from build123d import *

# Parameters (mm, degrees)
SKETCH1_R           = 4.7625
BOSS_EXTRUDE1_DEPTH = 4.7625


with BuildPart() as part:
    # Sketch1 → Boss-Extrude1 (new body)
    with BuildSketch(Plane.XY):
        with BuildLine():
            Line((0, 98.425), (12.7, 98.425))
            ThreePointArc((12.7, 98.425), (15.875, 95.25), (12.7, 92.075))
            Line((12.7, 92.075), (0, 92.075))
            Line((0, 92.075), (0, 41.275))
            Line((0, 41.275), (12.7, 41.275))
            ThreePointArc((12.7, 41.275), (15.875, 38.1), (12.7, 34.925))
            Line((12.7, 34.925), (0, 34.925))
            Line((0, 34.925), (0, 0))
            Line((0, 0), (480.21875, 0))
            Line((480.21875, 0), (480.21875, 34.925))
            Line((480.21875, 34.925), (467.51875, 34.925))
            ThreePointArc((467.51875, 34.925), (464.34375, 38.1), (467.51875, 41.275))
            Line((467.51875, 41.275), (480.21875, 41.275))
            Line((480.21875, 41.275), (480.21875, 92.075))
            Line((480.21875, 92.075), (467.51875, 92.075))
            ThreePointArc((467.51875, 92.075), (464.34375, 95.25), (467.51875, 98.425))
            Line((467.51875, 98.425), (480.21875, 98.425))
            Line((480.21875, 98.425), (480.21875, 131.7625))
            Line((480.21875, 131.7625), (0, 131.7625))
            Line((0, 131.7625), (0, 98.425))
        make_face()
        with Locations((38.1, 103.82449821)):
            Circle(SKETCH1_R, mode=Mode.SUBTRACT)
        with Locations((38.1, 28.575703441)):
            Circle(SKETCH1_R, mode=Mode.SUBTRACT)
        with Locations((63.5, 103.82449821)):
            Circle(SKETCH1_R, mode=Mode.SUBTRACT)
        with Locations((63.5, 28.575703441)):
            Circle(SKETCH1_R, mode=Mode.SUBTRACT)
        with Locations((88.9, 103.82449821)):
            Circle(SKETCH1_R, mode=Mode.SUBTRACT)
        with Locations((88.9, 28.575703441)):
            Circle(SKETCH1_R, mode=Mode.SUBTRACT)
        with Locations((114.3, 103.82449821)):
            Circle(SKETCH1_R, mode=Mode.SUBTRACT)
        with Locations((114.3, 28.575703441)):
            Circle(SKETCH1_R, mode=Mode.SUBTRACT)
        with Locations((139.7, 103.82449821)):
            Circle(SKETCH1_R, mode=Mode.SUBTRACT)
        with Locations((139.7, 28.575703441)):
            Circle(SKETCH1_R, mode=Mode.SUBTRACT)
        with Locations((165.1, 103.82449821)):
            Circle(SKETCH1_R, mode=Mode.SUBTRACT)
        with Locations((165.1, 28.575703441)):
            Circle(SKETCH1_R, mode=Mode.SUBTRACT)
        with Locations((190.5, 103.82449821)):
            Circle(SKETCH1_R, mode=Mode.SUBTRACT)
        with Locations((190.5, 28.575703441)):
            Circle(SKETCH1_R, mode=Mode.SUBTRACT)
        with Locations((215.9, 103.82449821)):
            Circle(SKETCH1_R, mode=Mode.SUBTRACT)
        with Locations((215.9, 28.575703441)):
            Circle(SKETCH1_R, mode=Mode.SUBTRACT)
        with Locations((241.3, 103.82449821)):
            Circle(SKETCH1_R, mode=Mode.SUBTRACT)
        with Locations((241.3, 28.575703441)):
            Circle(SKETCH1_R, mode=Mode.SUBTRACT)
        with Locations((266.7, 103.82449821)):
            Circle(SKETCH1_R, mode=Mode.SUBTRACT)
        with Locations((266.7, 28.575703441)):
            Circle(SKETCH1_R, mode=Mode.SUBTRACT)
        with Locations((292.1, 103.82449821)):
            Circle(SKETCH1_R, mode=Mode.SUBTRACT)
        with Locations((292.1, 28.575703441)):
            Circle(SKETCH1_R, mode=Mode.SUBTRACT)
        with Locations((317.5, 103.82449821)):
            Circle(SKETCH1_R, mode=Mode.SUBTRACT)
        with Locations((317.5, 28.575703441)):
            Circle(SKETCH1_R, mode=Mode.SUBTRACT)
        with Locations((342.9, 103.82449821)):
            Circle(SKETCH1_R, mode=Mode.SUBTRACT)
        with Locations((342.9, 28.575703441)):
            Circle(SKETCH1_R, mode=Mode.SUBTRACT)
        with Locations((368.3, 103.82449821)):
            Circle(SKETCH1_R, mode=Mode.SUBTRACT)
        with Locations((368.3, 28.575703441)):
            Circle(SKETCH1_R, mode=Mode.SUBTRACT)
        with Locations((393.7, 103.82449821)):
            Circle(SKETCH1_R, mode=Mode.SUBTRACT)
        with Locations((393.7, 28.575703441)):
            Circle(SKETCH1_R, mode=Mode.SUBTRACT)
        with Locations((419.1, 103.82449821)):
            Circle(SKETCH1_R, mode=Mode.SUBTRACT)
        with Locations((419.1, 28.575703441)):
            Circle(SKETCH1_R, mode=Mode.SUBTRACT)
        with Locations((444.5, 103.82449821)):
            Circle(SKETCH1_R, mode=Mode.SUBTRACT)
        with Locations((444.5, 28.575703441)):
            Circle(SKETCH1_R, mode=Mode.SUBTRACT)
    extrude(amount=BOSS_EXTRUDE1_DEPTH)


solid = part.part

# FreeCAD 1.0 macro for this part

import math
import FreeCAD as App
import Part
import Sketcher
Q = App.Units.Quantity

doc = App.newDocument("Part")
body = doc.addObject("PartDesign::Body", "Body")

sketch1 = body.newObject("Sketcher::SketchObject", "Sketch")
sketch1.AttachmentSupport = (doc.getObject("XY_Plane"), [""])
sketch1.MapMode = "FlatFace"
sketch1.addGeometry(Part.LineSegment(App.Vector(0, 98.4, 0), App.Vector(12.7, 98.4, 0)), False)
sketch1.addGeometry(Part.ArcOfCircle(Part.Circle(App.Vector(12.7, 95.2, 0), App.Vector(0, 0, 1), 3.2), math.radians(-90), math.radians(90)), False)
sketch1.addGeometry(Part.LineSegment(App.Vector(12.7, 92.1, 0), App.Vector(0, 92.1, 0)), False)
sketch1.addGeometry(Part.LineSegment(App.Vector(0, 92.1, 0), App.Vector(0, 41.3, 0)), False)
sketch1.addGeometry(Part.LineSegment(App.Vector(0, 41.3, 0), App.Vector(12.7, 41.3, 0)), False)
sketch1.addGeometry(Part.ArcOfCircle(Part.Circle(App.Vector(12.7, 38.1, 0), App.Vector(0, 0, 1), 3.2), math.radians(-90), math.radians(90)), False)
sketch1.addGeometry(Part.LineSegment(App.Vector(12.7, 34.9, 0), App.Vector(0, 34.9, 0)), False)
sketch1.addGeometry(Part.LineSegment(App.Vector(0, 34.9, 0), App.Vector(0, 0, 0)), False)
sketch1.addGeometry(Part.LineSegment(App.Vector(0, 0, 0), App.Vector(480.2, 0, 0)), False)
sketch1.addGeometry(Part.LineSegment(App.Vector(480.2, 0, 0), App.Vector(480.2, 34.9, 0)), False)
sketch1.addGeometry(Part.LineSegment(App.Vector(480.2, 34.9, 0), App.Vector(467.5, 34.9, 0)), False)
sketch1.addGeometry(Part.ArcOfCircle(Part.Circle(App.Vector(467.5, 38.1, 0), App.Vector(0, 0, 1), 3.2), math.radians(90), math.radians(270)), False)
sketch1.addGeometry(Part.LineSegment(App.Vector(467.5, 41.3, 0), App.Vector(480.2, 41.3, 0)), False)
sketch1.addGeometry(Part.LineSegment(App.Vector(480.2, 41.3, 0), App.Vector(480.2, 92.1, 0)), False)
sketch1.addGeometry(Part.LineSegment(App.Vector(480.2, 92.1, 0), App.Vector(467.5, 92.1, 0)), False)
sketch1.addGeometry(Part.ArcOfCircle(Part.Circle(App.Vector(467.5, 95.2, 0), App.Vector(0, 0, 1), 3.2), math.radians(90), math.radians(270)), False)
sketch1.addGeometry(Part.LineSegment(App.Vector(467.5, 98.4, 0), App.Vector(480.2, 98.4, 0)), False)
sketch1.addGeometry(Part.LineSegment(App.Vector(480.2, 98.4, 0), App.Vector(480.2, 131.8, 0)), False)
sketch1.addGeometry(Part.LineSegment(App.Vector(480.2, 131.8, 0), App.Vector(0, 131.8, 0)), False)
sketch1.addGeometry(Part.LineSegment(App.Vector(0, 131.8, 0), App.Vector(0, 98.4, 0)), False)
sketch1.addGeometry(Part.Circle(App.Vector(38.1, 28.6, 0), App.Vector(0, 0, 1), 4.8), False)
sketch1.addGeometry(Part.Circle(App.Vector(63.5, 28.6, 0), App.Vector(0, 0, 1), 4.8), False)
sketch1.addGeometry(Part.Circle(App.Vector(88.9, 28.6, 0), App.Vector(0, 0, 1), 4.8), False)
sketch1.addGeometry(Part.Circle(App.Vector(114.3, 28.6, 0), App.Vector(0, 0, 1), 4.8), False)
sketch1.addGeometry(Part.Circle(App.Vector(139.7, 28.6, 0), App.Vector(0, 0, 1), 4.8), False)
sketch1.addGeometry(Part.Circle(App.Vector(165.1, 28.6, 0), App.Vector(0, 0, 1), 4.8), False)
sketch1.addGeometry(Part.Circle(App.Vector(190.5, 28.6, 0), App.Vector(0, 0, 1), 4.8), False)
sketch1.addGeometry(Part.Circle(App.Vector(215.9, 28.6, 0), App.Vector(0, 0, 1), 4.8), False)
sketch1.addGeometry(Part.Circle(App.Vector(241.3, 28.6, 0), App.Vector(0, 0, 1), 4.8), False)
sketch1.addGeometry(Part.Circle(App.Vector(266.7, 28.6, 0), App.Vector(0, 0, 1), 4.8), False)
sketch1.addGeometry(Part.Circle(App.Vector(292.1, 28.6, 0), App.Vector(0, 0, 1), 4.8), False)
sketch1.addGeometry(Part.Circle(App.Vector(317.5, 28.6, 0), App.Vector(0, 0, 1), 4.8), False)
sketch1.addGeometry(Part.Circle(App.Vector(342.9, 28.6, 0), App.Vector(0, 0, 1), 4.8), False)
sketch1.addGeometry(Part.Circle(App.Vector(368.3, 28.6, 0), App.Vector(0, 0, 1), 4.8), False)
sketch1.addGeometry(Part.Circle(App.Vector(393.7, 28.6, 0), App.Vector(0, 0, 1), 4.8), False)
sketch1.addGeometry(Part.Circle(App.Vector(419.1, 28.6, 0), App.Vector(0, 0, 1), 4.8), False)
sketch1.addGeometry(Part.Circle(App.Vector(444.5, 28.6, 0), App.Vector(0, 0, 1), 4.8), False)
sketch1.addGeometry(Part.Circle(App.Vector(38.1, 103.8, 0), App.Vector(0, 0, 1), 4.8), False)
sketch1.addGeometry(Part.Circle(App.Vector(63.5, 103.8, 0), App.Vector(0, 0, 1), 4.8), False)
sketch1.addGeometry(Part.Circle(App.Vector(88.9, 103.8, 0), App.Vector(0, 0, 1), 4.8), False)
sketch1.addGeometry(Part.Circle(App.Vector(114.3, 103.8, 0), App.Vector(0, 0, 1), 4.8), False)
sketch1.addGeometry(Part.Circle(App.Vector(139.7, 103.8, 0), App.Vector(0, 0, 1), 4.8), False)
sketch1.addGeometry(Part.Circle(App.Vector(165.1, 103.8, 0), App.Vector(0, 0, 1), 4.8), False)
sketch1.addGeometry(Part.Circle(App.Vector(190.5, 103.8, 0), App.Vector(0, 0, 1), 4.8), False)
sketch1.addGeometry(Part.Circle(App.Vector(215.9, 103.8, 0), App.Vector(0, 0, 1), 4.8), False)
sketch1.addGeometry(Part.Circle(App.Vector(241.3, 103.8, 0), App.Vector(0, 0, 1), 4.8), False)
sketch1.addGeometry(Part.Circle(App.Vector(266.7, 103.8, 0), App.Vector(0, 0, 1), 4.8), False)
sketch1.addGeometry(Part.Circle(App.Vector(292.1, 103.8, 0), App.Vector(0, 0, 1), 4.8), False)
sketch1.addGeometry(Part.Circle(App.Vector(317.5, 103.8, 0), App.Vector(0, 0, 1), 4.8), False)
sketch1.addGeometry(Part.Circle(App.Vector(342.9, 103.8, 0), App.Vector(0, 0, 1), 4.8), False)
sketch1.addGeometry(Part.Circle(App.Vector(368.3, 103.8, 0), App.Vector(0, 0, 1), 4.8), False)
sketch1.addGeometry(Part.Circle(App.Vector(393.7, 103.8, 0), App.Vector(0, 0, 1), 4.8), False)
sketch1.addGeometry(Part.Circle(App.Vector(419.1, 103.8, 0), App.Vector(0, 0, 1), 4.8), False)
sketch1.addGeometry(Part.Circle(App.Vector(444.5, 103.8, 0), App.Vector(0, 0, 1), 4.8), False)
sketch1.addConstraint(Sketcher.Constraint("Tangent", 0, 2, 1, 2))
sketch1.addConstraint(Sketcher.Constraint("Tangent", 1, 1, 2, 1))
sketch1.addConstraint(Sketcher.Constraint("Coincident", 2, 2, 3, 1))
sketch1.addConstraint(Sketcher.Constraint("Coincident", 3, 2, 4, 1))
sketch1.addConstraint(Sketcher.Constraint("Tangent", 4, 2, 5, 2))
sketch1.addConstraint(Sketcher.Constraint("Tangent", 5, 1, 6, 1))
sketch1.addConstraint(Sketcher.Constraint("Coincident", 6, 2, 7, 1))
sketch1.addConstraint(Sketcher.Constraint("Coincident", 7, 2, 8, 1))
sketch1.addConstraint(Sketcher.Constraint("Coincident", 8, 2, 9, 1))
sketch1.addConstraint(Sketcher.Constraint("Coincident", 9, 2, 10, 1))
sketch1.addConstraint(Sketcher.Constraint("Tangent", 10, 2, 11, 2))
sketch1.addConstraint(Sketcher.Constraint("Tangent", 11, 1, 12, 1))
sketch1.addConstraint(Sketcher.Constraint("Coincident", 12, 2, 13, 1))
sketch1.addConstraint(Sketcher.Constraint("Coincident", 13, 2, 14, 1))
sketch1.addConstraint(Sketcher.Constraint("Tangent", 14, 2, 15, 2))
sketch1.addConstraint(Sketcher.Constraint("Tangent", 15, 1, 16, 1))
sketch1.addConstraint(Sketcher.Constraint("Coincident", 16, 2, 17, 1))
sketch1.addConstraint(Sketcher.Constraint("Coincident", 17, 2, 18, 1))
sketch1.addConstraint(Sketcher.Constraint("Coincident", 18, 2, 19, 1))
sketch1.addConstraint(Sketcher.Constraint("Coincident", 19, 2, 0, 1))
sketch1.addConstraint(Sketcher.Constraint("Horizontal", 0))
sketch1.addConstraint(Sketcher.Constraint("Horizontal", 2))
sketch1.addConstraint(Sketcher.Constraint("Vertical", 3))
sketch1.addConstraint(Sketcher.Constraint("Horizontal", 4))
sketch1.addConstraint(Sketcher.Constraint("Horizontal", 6))
sketch1.addConstraint(Sketcher.Constraint("Vertical", 7))
sketch1.addConstraint(Sketcher.Constraint("Horizontal", 8))
sketch1.addConstraint(Sketcher.Constraint("Vertical", 9))
sketch1.addConstraint(Sketcher.Constraint("Horizontal", 10))
sketch1.addConstraint(Sketcher.Constraint("Horizontal", 12))
sketch1.addConstraint(Sketcher.Constraint("Vertical", 13))
sketch1.addConstraint(Sketcher.Constraint("Horizontal", 14))
sketch1.addConstraint(Sketcher.Constraint("Horizontal", 16))
sketch1.addConstraint(Sketcher.Constraint("Vertical", 17))
sketch1.addConstraint(Sketcher.Constraint("Horizontal", 18))
sketch1.addConstraint(Sketcher.Constraint("Vertical", 19))
sketch1.addConstraint(Sketcher.Constraint("Coincident", 7, 2, -1, 1))
sketch1.addConstraint(Sketcher.Constraint("Equal", 1, 5))
sketch1.addConstraint(Sketcher.Constraint("Equal", 5, 11))
sketch1.addConstraint(Sketcher.Constraint("Equal", 11, 15))
sketch1.addConstraint(Sketcher.Constraint("Equal", 20, 21))
sketch1.addConstraint(Sketcher.Constraint("Equal", 21, 22))
sketch1.addConstraint(Sketcher.Constraint("Equal", 22, 23))
sketch1.addConstraint(Sketcher.Constraint("Equal", 23, 24))
sketch1.addConstraint(Sketcher.Constraint("Equal", 24, 25))
sketch1.addConstraint(Sketcher.Constraint("Equal", 25, 26))
sketch1.addConstraint(Sketcher.Constraint("Equal", 26, 27))
sketch1.addConstraint(Sketcher.Constraint("Equal", 27, 28))
sketch1.addConstraint(Sketcher.Constraint("Equal", 28, 29))
sketch1.addConstraint(Sketcher.Constraint("Equal", 29, 30))
sketch1.addConstraint(Sketcher.Constraint("Equal", 30, 31))
sketch1.addConstraint(Sketcher.Constraint("Equal", 31, 32))
sketch1.addConstraint(Sketcher.Constraint("Equal", 32, 33))
sketch1.addConstraint(Sketcher.Constraint("Equal", 33, 34))
sketch1.addConstraint(Sketcher.Constraint("Equal", 34, 35))
sketch1.addConstraint(Sketcher.Constraint("Equal", 35, 36))
sketch1.addConstraint(Sketcher.Constraint("Equal", 36, 37))
sketch1.addConstraint(Sketcher.Constraint("Equal", 37, 38))
sketch1.addConstraint(Sketcher.Constraint("Equal", 38, 39))
sketch1.addConstraint(Sketcher.Constraint("Equal", 39, 40))
sketch1.addConstraint(Sketcher.Constraint("Equal", 40, 41))
sketch1.addConstraint(Sketcher.Constraint("Equal", 41, 42))
sketch1.addConstraint(Sketcher.Constraint("Equal", 42, 43))
sketch1.addConstraint(Sketcher.Constraint("Equal", 43, 44))
sketch1.addConstraint(Sketcher.Constraint("Equal", 44, 45))
sketch1.addConstraint(Sketcher.Constraint("Equal", 45, 46))
sketch1.addConstraint(Sketcher.Constraint("Equal", 46, 47))
sketch1.addConstraint(Sketcher.Constraint("Equal", 47, 48))
sketch1.addConstraint(Sketcher.Constraint("Equal", 48, 49))
sketch1.addConstraint(Sketcher.Constraint("Equal", 49, 50))
sketch1.addConstraint(Sketcher.Constraint("Equal", 50, 51))
sketch1.addConstraint(Sketcher.Constraint("Equal", 51, 52))
sketch1.addConstraint(Sketcher.Constraint("Equal", 52, 53))
sketch1.addConstraint(Sketcher.Constraint("PointOnObject", 2, 2, -2))
sketch1.addConstraint(Sketcher.Constraint("PointOnObject", 18, 2, -2))
sketch1.addConstraint(Sketcher.Constraint("Horizontal", 5, 3, 11, 3))
sketch1.addConstraint(Sketcher.Constraint("Horizontal", 1, 3, 15, 3))
sketch1.addConstraint(Sketcher.Constraint("Horizontal", 20, 3, 21, 3))
sketch1.addConstraint(Sketcher.Constraint("Horizontal", 21, 3, 22, 3))
sketch1.addConstraint(Sketcher.Constraint("Horizontal", 22, 3, 23, 3))
sketch1.addConstraint(Sketcher.Constraint("Horizontal", 23, 3, 24, 3))
sketch1.addConstraint(Sketcher.Constraint("Horizontal", 24, 3, 25, 3))
sketch1.addConstraint(Sketcher.Constraint("Horizontal", 25, 3, 26, 3))
sketch1.addConstraint(Sketcher.Constraint("Horizontal", 26, 3, 27, 3))
sketch1.addConstraint(Sketcher.Constraint("Horizontal", 27, 3, 28, 3))
sketch1.addConstraint(Sketcher.Constraint("Horizontal", 28, 3, 29, 3))
sketch1.addConstraint(Sketcher.Constraint("Horizontal", 29, 3, 30, 3))
sketch1.addConstraint(Sketcher.Constraint("Horizontal", 30, 3, 31, 3))
sketch1.addConstraint(Sketcher.Constraint("Horizontal", 31, 3, 32, 3))
sketch1.addConstraint(Sketcher.Constraint("Horizontal", 32, 3, 33, 3))
sketch1.addConstraint(Sketcher.Constraint("Horizontal", 33, 3, 34, 3))
sketch1.addConstraint(Sketcher.Constraint("Horizontal", 34, 3, 35, 3))
sketch1.addConstraint(Sketcher.Constraint("Horizontal", 35, 3, 36, 3))
sketch1.addConstraint(Sketcher.Constraint("Horizontal", 37, 3, 38, 3))
sketch1.addConstraint(Sketcher.Constraint("Horizontal", 38, 3, 39, 3))
sketch1.addConstraint(Sketcher.Constraint("Horizontal", 39, 3, 40, 3))
sketch1.addConstraint(Sketcher.Constraint("Horizontal", 40, 3, 41, 3))
sketch1.addConstraint(Sketcher.Constraint("Horizontal", 41, 3, 42, 3))
sketch1.addConstraint(Sketcher.Constraint("Horizontal", 42, 3, 43, 3))
sketch1.addConstraint(Sketcher.Constraint("Horizontal", 43, 3, 44, 3))
sketch1.addConstraint(Sketcher.Constraint("Horizontal", 44, 3, 45, 3))
sketch1.addConstraint(Sketcher.Constraint("Horizontal", 45, 3, 46, 3))
sketch1.addConstraint(Sketcher.Constraint("Horizontal", 46, 3, 47, 3))
sketch1.addConstraint(Sketcher.Constraint("Horizontal", 47, 3, 48, 3))
sketch1.addConstraint(Sketcher.Constraint("Horizontal", 48, 3, 49, 3))
sketch1.addConstraint(Sketcher.Constraint("Horizontal", 49, 3, 50, 3))
sketch1.addConstraint(Sketcher.Constraint("Horizontal", 50, 3, 51, 3))
sketch1.addConstraint(Sketcher.Constraint("Horizontal", 51, 3, 52, 3))
sketch1.addConstraint(Sketcher.Constraint("Horizontal", 52, 3, 53, 3))
sketch1.addConstraint(Sketcher.Constraint("Vertical", 1, 3, 5, 3))
sketch1.addConstraint(Sketcher.Constraint("Vertical", 11, 3, 15, 3))
sketch1.addConstraint(Sketcher.Constraint("Vertical", 20, 3, 37, 3))
sketch1.addConstraint(Sketcher.Constraint("Vertical", 21, 3, 38, 3))
sketch1.addConstraint(Sketcher.Constraint("Vertical", 22, 3, 39, 3))
sketch1.addConstraint(Sketcher.Constraint("Vertical", 23, 3, 40, 3))
sketch1.addConstraint(Sketcher.Constraint("Vertical", 24, 3, 41, 3))
sketch1.addConstraint(Sketcher.Constraint("Vertical", 25, 3, 42, 3))
sketch1.addConstraint(Sketcher.Constraint("Vertical", 26, 3, 43, 3))
sketch1.addConstraint(Sketcher.Constraint("Vertical", 27, 3, 44, 3))
sketch1.addConstraint(Sketcher.Constraint("Vertical", 28, 3, 45, 3))
sketch1.addConstraint(Sketcher.Constraint("Vertical", 29, 3, 46, 3))
sketch1.addConstraint(Sketcher.Constraint("Vertical", 30, 3, 47, 3))
sketch1.addConstraint(Sketcher.Constraint("Vertical", 31, 3, 48, 3))
sketch1.addConstraint(Sketcher.Constraint("Vertical", 32, 3, 49, 3))
sketch1.addConstraint(Sketcher.Constraint("Vertical", 33, 3, 50, 3))
sketch1.addConstraint(Sketcher.Constraint("Vertical", 34, 3, 51, 3))
sketch1.addConstraint(Sketcher.Constraint("Vertical", 35, 3, 52, 3))
sketch1.addConstraint(Sketcher.Constraint("Vertical", 36, 3, 53, 3))
sketch1.addConstraint(Sketcher.Constraint("Vertical", 9, 2, 12, 2))
sketch1.addConstraint(Sketcher.Constraint("Vertical", 13, 2, 16, 2))
sketch1.addConstraint(Sketcher.Constraint("Equal", 6, 10))
sketch1.addConstraint(Sketcher.Constraint("DistanceY", 3, 2, 3, 1, Q("2 in")))
sketch1.addConstraint(Sketcher.Constraint("Diameter", 20, Q("0.375 in")))
sketch1.addConstraint(Sketcher.Constraint("DistanceX", 0, 1, 0, 2, Q("0.5 in")))
sketch1.addConstraint(Sketcher.Constraint("Radius", 1, Q("0.125 in")))
sketch1.addConstraint(Sketcher.Constraint("DistanceX", 5, 3, 20, 3, Q("1 in")))
sketch1.addConstraint(Sketcher.Constraint("DistanceX", 20, 3, 21, 3, Q("1 in")))
sketch1.addConstraint(Sketcher.Constraint("DistanceX", 21, 3, 22, 3, Q("1 in")))
sketch1.addConstraint(Sketcher.Constraint("DistanceX", 22, 3, 23, 3, Q("1 in")))
sketch1.addConstraint(Sketcher.Constraint("DistanceX", 23, 3, 24, 3, Q("1 in")))
sketch1.addConstraint(Sketcher.Constraint("DistanceX", 24, 3, 25, 3, Q("1 in")))
sketch1.addConstraint(Sketcher.Constraint("DistanceX", 25, 3, 26, 3, Q("1 in")))
sketch1.addConstraint(Sketcher.Constraint("DistanceX", 26, 3, 27, 3, Q("1 in")))
sketch1.addConstraint(Sketcher.Constraint("DistanceX", 27, 3, 28, 3, Q("1 in")))
sketch1.addConstraint(Sketcher.Constraint("DistanceX", 28, 3, 29, 3, Q("1 in")))
sketch1.addConstraint(Sketcher.Constraint("DistanceX", 29, 3, 30, 3, Q("1 in")))
sketch1.addConstraint(Sketcher.Constraint("DistanceX", 30, 3, 31, 3, Q("1 in")))
sketch1.addConstraint(Sketcher.Constraint("DistanceX", 31, 3, 32, 3, Q("1 in")))
sketch1.addConstraint(Sketcher.Constraint("DistanceX", 32, 3, 33, 3, Q("1 in")))
sketch1.addConstraint(Sketcher.Constraint("DistanceX", 33, 3, 34, 3, Q("1 in")))
sketch1.addConstraint(Sketcher.Constraint("DistanceX", 34, 3, 35, 3, Q("1 in")))
sketch1.addConstraint(Sketcher.Constraint("DistanceX", 35, 3, 36, 3, Q("1 in")))
sketch1.addConstraint(Sketcher.Constraint("DistanceY", -1, 1, 5, 3, Q("1.5 in")))
sketch1.addConstraint(Sketcher.Constraint("DistanceX", 8, 1, 8, 2, Q("18.90625 in")))
sketch1.addConstraint(Sketcher.Constraint("DistanceY", 17, 1, 17, 2, Q("1.3125 in")))
sketch1.addConstraint(Sketcher.Constraint("DistanceY", -1, 1, 37, 3, 103.824498))
sketch1.addConstraint(Sketcher.Constraint("DistanceY", -1, 1, 20, 3, 28.575703))
pad1 = body.newObject("PartDesign::Pad", "Pad")
pad1.Profile = sketch1
pad1.Length = Q("0.1875 in")

doc.recompute()
